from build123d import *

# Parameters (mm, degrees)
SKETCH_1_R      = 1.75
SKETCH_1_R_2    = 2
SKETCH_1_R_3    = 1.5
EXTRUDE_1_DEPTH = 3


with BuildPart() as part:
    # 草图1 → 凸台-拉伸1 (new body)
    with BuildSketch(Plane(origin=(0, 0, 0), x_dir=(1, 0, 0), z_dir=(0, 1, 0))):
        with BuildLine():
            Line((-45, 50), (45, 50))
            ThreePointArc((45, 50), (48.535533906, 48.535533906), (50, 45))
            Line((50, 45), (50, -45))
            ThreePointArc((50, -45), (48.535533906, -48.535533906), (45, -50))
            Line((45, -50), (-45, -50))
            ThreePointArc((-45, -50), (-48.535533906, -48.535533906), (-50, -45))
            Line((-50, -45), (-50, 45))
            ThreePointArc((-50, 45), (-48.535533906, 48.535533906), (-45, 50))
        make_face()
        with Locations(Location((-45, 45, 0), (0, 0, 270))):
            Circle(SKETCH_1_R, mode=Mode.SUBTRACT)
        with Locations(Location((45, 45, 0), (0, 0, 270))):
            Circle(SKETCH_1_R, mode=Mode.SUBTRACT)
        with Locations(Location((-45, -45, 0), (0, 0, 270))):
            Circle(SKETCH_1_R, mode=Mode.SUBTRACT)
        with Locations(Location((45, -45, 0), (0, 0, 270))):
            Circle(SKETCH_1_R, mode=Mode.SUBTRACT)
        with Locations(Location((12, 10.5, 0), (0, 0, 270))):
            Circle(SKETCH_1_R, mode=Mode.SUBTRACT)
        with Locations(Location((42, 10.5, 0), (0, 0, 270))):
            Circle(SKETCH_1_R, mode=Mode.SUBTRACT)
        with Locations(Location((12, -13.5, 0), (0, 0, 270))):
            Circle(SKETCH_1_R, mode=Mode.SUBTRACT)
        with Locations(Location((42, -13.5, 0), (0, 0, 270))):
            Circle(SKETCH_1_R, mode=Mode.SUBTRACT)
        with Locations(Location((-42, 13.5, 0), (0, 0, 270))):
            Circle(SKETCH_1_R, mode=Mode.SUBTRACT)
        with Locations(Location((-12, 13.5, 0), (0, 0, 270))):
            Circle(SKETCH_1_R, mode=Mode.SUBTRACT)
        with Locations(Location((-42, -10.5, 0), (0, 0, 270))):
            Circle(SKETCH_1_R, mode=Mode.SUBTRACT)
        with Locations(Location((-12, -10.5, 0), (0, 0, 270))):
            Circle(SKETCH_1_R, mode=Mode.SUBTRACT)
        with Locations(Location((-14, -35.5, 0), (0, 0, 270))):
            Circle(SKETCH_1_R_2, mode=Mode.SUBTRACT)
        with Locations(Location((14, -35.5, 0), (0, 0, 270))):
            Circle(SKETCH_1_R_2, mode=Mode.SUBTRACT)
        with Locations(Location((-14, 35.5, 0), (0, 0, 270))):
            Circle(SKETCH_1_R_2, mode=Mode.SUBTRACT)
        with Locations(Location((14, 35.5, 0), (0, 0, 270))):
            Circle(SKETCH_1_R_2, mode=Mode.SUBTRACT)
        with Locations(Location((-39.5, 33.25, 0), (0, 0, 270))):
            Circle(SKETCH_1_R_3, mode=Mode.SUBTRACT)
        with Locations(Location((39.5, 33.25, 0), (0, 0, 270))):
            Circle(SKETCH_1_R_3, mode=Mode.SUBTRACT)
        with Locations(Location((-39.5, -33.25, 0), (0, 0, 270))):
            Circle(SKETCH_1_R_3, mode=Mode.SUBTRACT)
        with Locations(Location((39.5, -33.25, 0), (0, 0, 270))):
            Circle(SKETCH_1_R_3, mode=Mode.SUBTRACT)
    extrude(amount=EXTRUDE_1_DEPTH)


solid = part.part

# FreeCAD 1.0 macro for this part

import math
import FreeCAD as App
import Part
import Sketcher

V = App.Vector
Q = App.Units.Quantity

doc = App.newDocument("Part")
params = doc.addObject("Spreadsheet::Sheet", "Params")
for row, (alias, value) in enumerate([
    ("sketch1_diameter", "3 mm"),
    ("sketch1_diameter2", "4 mm"),
    ("sketch1_radius", "5 mm"),
    ("sketch1_diameter3", "3.5 mm"),
    ("sketch1_width", "90 mm"),
    ("pad1_length", "3 mm"),
], start=1):
    params.set(f"A{row}", alias)
    params.set(f"B{row}", "=" + value)
    params.setAlias(f"B{row}", alias)

body = doc.addObject("PartDesign::Body", "Body")

# Sketch on XZ plane
sketch1 = body.newObject("Sketcher::SketchObject", "Sketch")
sketch1.AttachmentSupport = (doc.getObject("XZ_Plane"), [""])
sketch1.MapMode = "FlatFace"
sketch1.addGeometry([
    Part.LineSegment(V(45, -50, 0), V(-45, -50, 0)),  # 0
    Part.ArcOfCircle(Part.Circle(V(-45, -45, 0), V(0, 0, 1), 5), math.radians(180), math.radians(270)),  # 1
    Part.LineSegment(V(-50, -45, 0), V(-50, 45, 0)),  # 2
    Part.ArcOfCircle(Part.Circle(V(-45, 45, 0), V(0, 0, 1), 5), math.radians(90), math.radians(180)),  # 3
    Part.LineSegment(V(-45, 50, 0), V(45, 50, 0)),  # 4
    Part.ArcOfCircle(Part.Circle(V(45, 45, 0), V(0, 0, 1), 5), math.radians(0), math.radians(90)),  # 5
    Part.LineSegment(V(50, 45, 0), V(50, -45, 0)),  # 6
    Part.ArcOfCircle(Part.Circle(V(45, -45, 0), V(0, 0, 1), 5), math.radians(-90), math.radians(0)),  # 7
    Part.Circle(V(45, 45, 0), V(0, 0, 1), 1.75),  # 8
    Part.Circle(V(39.5, 33.25, 0), V(0, 0, 1), 1.5),  # 9
    Part.Circle(V(14, 35.5, 0), V(0, 0, 1), 2),  # 10
    Part.Circle(V(42, 13.5, 0), V(0, 0, 1), 1.75),  # 11
    Part.Circle(V(12, 13.5, 0), V(0, 0, 1), 1.75),  # 12
    Part.Circle(V(-14, 35.5, 0), V(0, 0, 1), 2),  # 13
    Part.Circle(V(-45, 45, 0), V(0, 0, 1), 1.75),  # 14
    Part.Circle(V(-39.5, 33.25, 0), V(0, 0, 1), 1.5),  # 15
    Part.Circle(V(-12, 10.5, 0), V(0, 0, 1), 1.75),  # 16
    Part.Circle(V(-42, 10.5, 0), V(0, 0, 1), 1.75),  # 17
    Part.Circle(V(42, -10.5, 0), V(0, 0, 1), 1.75),  # 18
    Part.Circle(V(12, -10.5, 0), V(0, 0, 1), 1.75),  # 19
    Part.Circle(V(39.5, -33.25, 0), V(0, 0, 1), 1.5),  # 20
    Part.Circle(V(45, -45, 0), V(0, 0, 1), 1.75),  # 21
    Part.Circle(V(14, -35.5, 0), V(0, 0, 1), 2),  # 22
    Part.Circle(V(-12, -13.5, 0), V(0, 0, 1), 1.75),  # 23
    Part.Circle(V(-42, -13.5, 0), V(0, 0, 1), 1.75),  # 24
    Part.Circle(V(-14, -35.5, 0), V(0, 0, 1), 2),  # 25
    Part.Circle(V(-39.5, -33.25, 0), V(0, 0, 1), 1.5),  # 26
    Part.Circle(V(-45, -45, 0), V(0, 0, 1), 1.75),  # 27
], False)
sketch1.addConstraint([
    Sketcher.Constraint("Tangent", 0, 2, 1, 2),
    Sketcher.Constraint("Tangent", 1, 1, 2, 1),
    Sketcher.Constraint("Tangent", 2, 2, 3, 2),
    Sketcher.Constraint("Tangent", 3, 1, 4, 1),
    Sketcher.Constraint("Tangent", 4, 2, 5, 2),
    Sketcher.Constraint("Tangent", 5, 1, 6, 1),
    Sketcher.Constraint("Tangent", 6, 2, 7, 2),
    Sketcher.Constraint("Tangent", 7, 1, 0, 1),
    Sketcher.Constraint("Horizontal", 0),
    Sketcher.Constraint("Vertical", 2),
    Sketcher.Constraint("Horizontal", 4),
    Sketcher.Constraint("Vertical", 6),
    Sketcher.Constraint("Coincident", 8, 3, 5, 3),
    Sketcher.Constraint("Coincident", 14, 3, 3, 3),
    Sketcher.Constraint("Coincident", 21, 3, 7, 3),
    Sketcher.Constraint("Coincident", 27, 3, 1, 3),
    Sketcher.Constraint("Equal", 1, 3),
    Sketcher.Constraint("Equal", 3, 5),
    Sketcher.Constraint("Equal", 5, 7),
    Sketcher.Constraint("Equal", 8, 11),
    Sketcher.Constraint("Equal", 11, 12),
    Sketcher.Constraint("Equal", 10, 13),
    Sketcher.Constraint("Equal", 12, 14),
    Sketcher.Constraint("Equal", 9, 15),
    Sketcher.Constraint("Equal", 14, 16),
    Sketcher.Constraint("Equal", 16, 17),
    Sketcher.Constraint("Equal", 17, 18),
    Sketcher.Constraint("Equal", 18, 19),
    Sketcher.Constraint("Equal", 15, 20),
    Sketcher.Constraint("Equal", 19, 21),
    Sketcher.Constraint("Equal", 13, 22),
    Sketcher.Constraint("Equal", 21, 23),
    Sketcher.Constraint("Equal", 23, 24),
    Sketcher.Constraint("Equal", 22, 25),
    Sketcher.Constraint("Equal", 20, 26),
    Sketcher.Constraint("Equal", 24, 27),
    Sketcher.Constraint("Symmetric", 1, 3, 5, 3, -1, 1),
    Sketcher.Constraint("Symmetric", 17, 3, 18, 3, -1, 1),
    Sketcher.Constraint("Symmetric", 16, 3, 19, 3, -1, 1),
    Sketcher.Constraint("Symmetric", 15, 3, 20, 3, -1, 1),
    Sketcher.Constraint("Symmetric", 13, 3, 22, 3, -1, 1),
    Sketcher.Constraint("Symmetric", 12, 3, 23, 3, -1, 1),
    Sketcher.Constraint("Symmetric", 11, 3, 24, 3, -1, 1),
    Sketcher.Constraint("Symmetric", 10, 3, 25, 3, -1, 1),
    Sketcher.Constraint("Symmetric", 9, 3, 26, 3, -1, 1),
    Sketcher.Constraint("Symmetric", 10, 3, 13, 3, -2),
    Sketcher.Constraint("Symmetric", 9, 3, 15, 3, -2),
    Sketcher.Constraint("Horizontal", 11, 3, 12, 3),
    Sketcher.Constraint("Horizontal", 16, 3, 17, 3),
    Sketcher.Constraint("Vertical", 11, 3, 18, 3),
    Sketcher.Constraint("Vertical", 12, 3, 19, 3),
    Sketcher.Constraint("Equal", 4, 2),
    Sketcher.Constraint("Diameter", 9, Q("3 mm")),
    Sketcher.Constraint("Diameter", 10, Q("4 mm")),
    Sketcher.Constraint("Radius", 1, Q("5 mm")),
    Sketcher.Constraint("Diameter", 8, Q("3.5 mm")),
    Sketcher.Constraint("DistanceX", 0, 2, 0, 1, Q("90 mm")),
    Sketcher.Constraint("DistanceX", -1, 1, 10, 3, Q("14 mm")),
    Sketcher.Constraint("DistanceX", -1, 1, 11, 3, Q("42 mm")),
    Sketcher.Constraint("DistanceX", -1, 1, 12, 3, Q("12 mm")),
    Sketcher.Constraint("DistanceY", 11, 3, 10, 3, Q("22 mm")),
    Sketcher.Constraint("DistanceY", 16, 3, 12, 3, Q("3 mm")),
    Sketcher.Constraint("DistanceY", 18, 3, 11, 3, Q("24 mm")),
    Sketcher.Constraint("DistanceX", -1, 1, 9, 3, Q("39.5 mm")),
    Sketcher.Constraint("DistanceY", -1, 1, 9, 3, Q("33.25 mm")),
])
sketch1.setExpression("Constraints[52]", "Params.sketch1_diameter")
sketch1.setExpression("Constraints[53]", "Params.sketch1_diameter2")
sketch1.setExpression("Constraints[54]", "Params.sketch1_radius")
sketch1.setExpression("Constraints[55]", "Params.sketch1_diameter3")
sketch1.setExpression("Constraints[56]", "Params.sketch1_width")
pad1 = body.newObject("PartDesign::Pad", "Pad")
pad1.Profile = sketch1
pad1.setExpression("Length", "Params.pad1_length")
pad1.Reversed = True

doc.recompute()
